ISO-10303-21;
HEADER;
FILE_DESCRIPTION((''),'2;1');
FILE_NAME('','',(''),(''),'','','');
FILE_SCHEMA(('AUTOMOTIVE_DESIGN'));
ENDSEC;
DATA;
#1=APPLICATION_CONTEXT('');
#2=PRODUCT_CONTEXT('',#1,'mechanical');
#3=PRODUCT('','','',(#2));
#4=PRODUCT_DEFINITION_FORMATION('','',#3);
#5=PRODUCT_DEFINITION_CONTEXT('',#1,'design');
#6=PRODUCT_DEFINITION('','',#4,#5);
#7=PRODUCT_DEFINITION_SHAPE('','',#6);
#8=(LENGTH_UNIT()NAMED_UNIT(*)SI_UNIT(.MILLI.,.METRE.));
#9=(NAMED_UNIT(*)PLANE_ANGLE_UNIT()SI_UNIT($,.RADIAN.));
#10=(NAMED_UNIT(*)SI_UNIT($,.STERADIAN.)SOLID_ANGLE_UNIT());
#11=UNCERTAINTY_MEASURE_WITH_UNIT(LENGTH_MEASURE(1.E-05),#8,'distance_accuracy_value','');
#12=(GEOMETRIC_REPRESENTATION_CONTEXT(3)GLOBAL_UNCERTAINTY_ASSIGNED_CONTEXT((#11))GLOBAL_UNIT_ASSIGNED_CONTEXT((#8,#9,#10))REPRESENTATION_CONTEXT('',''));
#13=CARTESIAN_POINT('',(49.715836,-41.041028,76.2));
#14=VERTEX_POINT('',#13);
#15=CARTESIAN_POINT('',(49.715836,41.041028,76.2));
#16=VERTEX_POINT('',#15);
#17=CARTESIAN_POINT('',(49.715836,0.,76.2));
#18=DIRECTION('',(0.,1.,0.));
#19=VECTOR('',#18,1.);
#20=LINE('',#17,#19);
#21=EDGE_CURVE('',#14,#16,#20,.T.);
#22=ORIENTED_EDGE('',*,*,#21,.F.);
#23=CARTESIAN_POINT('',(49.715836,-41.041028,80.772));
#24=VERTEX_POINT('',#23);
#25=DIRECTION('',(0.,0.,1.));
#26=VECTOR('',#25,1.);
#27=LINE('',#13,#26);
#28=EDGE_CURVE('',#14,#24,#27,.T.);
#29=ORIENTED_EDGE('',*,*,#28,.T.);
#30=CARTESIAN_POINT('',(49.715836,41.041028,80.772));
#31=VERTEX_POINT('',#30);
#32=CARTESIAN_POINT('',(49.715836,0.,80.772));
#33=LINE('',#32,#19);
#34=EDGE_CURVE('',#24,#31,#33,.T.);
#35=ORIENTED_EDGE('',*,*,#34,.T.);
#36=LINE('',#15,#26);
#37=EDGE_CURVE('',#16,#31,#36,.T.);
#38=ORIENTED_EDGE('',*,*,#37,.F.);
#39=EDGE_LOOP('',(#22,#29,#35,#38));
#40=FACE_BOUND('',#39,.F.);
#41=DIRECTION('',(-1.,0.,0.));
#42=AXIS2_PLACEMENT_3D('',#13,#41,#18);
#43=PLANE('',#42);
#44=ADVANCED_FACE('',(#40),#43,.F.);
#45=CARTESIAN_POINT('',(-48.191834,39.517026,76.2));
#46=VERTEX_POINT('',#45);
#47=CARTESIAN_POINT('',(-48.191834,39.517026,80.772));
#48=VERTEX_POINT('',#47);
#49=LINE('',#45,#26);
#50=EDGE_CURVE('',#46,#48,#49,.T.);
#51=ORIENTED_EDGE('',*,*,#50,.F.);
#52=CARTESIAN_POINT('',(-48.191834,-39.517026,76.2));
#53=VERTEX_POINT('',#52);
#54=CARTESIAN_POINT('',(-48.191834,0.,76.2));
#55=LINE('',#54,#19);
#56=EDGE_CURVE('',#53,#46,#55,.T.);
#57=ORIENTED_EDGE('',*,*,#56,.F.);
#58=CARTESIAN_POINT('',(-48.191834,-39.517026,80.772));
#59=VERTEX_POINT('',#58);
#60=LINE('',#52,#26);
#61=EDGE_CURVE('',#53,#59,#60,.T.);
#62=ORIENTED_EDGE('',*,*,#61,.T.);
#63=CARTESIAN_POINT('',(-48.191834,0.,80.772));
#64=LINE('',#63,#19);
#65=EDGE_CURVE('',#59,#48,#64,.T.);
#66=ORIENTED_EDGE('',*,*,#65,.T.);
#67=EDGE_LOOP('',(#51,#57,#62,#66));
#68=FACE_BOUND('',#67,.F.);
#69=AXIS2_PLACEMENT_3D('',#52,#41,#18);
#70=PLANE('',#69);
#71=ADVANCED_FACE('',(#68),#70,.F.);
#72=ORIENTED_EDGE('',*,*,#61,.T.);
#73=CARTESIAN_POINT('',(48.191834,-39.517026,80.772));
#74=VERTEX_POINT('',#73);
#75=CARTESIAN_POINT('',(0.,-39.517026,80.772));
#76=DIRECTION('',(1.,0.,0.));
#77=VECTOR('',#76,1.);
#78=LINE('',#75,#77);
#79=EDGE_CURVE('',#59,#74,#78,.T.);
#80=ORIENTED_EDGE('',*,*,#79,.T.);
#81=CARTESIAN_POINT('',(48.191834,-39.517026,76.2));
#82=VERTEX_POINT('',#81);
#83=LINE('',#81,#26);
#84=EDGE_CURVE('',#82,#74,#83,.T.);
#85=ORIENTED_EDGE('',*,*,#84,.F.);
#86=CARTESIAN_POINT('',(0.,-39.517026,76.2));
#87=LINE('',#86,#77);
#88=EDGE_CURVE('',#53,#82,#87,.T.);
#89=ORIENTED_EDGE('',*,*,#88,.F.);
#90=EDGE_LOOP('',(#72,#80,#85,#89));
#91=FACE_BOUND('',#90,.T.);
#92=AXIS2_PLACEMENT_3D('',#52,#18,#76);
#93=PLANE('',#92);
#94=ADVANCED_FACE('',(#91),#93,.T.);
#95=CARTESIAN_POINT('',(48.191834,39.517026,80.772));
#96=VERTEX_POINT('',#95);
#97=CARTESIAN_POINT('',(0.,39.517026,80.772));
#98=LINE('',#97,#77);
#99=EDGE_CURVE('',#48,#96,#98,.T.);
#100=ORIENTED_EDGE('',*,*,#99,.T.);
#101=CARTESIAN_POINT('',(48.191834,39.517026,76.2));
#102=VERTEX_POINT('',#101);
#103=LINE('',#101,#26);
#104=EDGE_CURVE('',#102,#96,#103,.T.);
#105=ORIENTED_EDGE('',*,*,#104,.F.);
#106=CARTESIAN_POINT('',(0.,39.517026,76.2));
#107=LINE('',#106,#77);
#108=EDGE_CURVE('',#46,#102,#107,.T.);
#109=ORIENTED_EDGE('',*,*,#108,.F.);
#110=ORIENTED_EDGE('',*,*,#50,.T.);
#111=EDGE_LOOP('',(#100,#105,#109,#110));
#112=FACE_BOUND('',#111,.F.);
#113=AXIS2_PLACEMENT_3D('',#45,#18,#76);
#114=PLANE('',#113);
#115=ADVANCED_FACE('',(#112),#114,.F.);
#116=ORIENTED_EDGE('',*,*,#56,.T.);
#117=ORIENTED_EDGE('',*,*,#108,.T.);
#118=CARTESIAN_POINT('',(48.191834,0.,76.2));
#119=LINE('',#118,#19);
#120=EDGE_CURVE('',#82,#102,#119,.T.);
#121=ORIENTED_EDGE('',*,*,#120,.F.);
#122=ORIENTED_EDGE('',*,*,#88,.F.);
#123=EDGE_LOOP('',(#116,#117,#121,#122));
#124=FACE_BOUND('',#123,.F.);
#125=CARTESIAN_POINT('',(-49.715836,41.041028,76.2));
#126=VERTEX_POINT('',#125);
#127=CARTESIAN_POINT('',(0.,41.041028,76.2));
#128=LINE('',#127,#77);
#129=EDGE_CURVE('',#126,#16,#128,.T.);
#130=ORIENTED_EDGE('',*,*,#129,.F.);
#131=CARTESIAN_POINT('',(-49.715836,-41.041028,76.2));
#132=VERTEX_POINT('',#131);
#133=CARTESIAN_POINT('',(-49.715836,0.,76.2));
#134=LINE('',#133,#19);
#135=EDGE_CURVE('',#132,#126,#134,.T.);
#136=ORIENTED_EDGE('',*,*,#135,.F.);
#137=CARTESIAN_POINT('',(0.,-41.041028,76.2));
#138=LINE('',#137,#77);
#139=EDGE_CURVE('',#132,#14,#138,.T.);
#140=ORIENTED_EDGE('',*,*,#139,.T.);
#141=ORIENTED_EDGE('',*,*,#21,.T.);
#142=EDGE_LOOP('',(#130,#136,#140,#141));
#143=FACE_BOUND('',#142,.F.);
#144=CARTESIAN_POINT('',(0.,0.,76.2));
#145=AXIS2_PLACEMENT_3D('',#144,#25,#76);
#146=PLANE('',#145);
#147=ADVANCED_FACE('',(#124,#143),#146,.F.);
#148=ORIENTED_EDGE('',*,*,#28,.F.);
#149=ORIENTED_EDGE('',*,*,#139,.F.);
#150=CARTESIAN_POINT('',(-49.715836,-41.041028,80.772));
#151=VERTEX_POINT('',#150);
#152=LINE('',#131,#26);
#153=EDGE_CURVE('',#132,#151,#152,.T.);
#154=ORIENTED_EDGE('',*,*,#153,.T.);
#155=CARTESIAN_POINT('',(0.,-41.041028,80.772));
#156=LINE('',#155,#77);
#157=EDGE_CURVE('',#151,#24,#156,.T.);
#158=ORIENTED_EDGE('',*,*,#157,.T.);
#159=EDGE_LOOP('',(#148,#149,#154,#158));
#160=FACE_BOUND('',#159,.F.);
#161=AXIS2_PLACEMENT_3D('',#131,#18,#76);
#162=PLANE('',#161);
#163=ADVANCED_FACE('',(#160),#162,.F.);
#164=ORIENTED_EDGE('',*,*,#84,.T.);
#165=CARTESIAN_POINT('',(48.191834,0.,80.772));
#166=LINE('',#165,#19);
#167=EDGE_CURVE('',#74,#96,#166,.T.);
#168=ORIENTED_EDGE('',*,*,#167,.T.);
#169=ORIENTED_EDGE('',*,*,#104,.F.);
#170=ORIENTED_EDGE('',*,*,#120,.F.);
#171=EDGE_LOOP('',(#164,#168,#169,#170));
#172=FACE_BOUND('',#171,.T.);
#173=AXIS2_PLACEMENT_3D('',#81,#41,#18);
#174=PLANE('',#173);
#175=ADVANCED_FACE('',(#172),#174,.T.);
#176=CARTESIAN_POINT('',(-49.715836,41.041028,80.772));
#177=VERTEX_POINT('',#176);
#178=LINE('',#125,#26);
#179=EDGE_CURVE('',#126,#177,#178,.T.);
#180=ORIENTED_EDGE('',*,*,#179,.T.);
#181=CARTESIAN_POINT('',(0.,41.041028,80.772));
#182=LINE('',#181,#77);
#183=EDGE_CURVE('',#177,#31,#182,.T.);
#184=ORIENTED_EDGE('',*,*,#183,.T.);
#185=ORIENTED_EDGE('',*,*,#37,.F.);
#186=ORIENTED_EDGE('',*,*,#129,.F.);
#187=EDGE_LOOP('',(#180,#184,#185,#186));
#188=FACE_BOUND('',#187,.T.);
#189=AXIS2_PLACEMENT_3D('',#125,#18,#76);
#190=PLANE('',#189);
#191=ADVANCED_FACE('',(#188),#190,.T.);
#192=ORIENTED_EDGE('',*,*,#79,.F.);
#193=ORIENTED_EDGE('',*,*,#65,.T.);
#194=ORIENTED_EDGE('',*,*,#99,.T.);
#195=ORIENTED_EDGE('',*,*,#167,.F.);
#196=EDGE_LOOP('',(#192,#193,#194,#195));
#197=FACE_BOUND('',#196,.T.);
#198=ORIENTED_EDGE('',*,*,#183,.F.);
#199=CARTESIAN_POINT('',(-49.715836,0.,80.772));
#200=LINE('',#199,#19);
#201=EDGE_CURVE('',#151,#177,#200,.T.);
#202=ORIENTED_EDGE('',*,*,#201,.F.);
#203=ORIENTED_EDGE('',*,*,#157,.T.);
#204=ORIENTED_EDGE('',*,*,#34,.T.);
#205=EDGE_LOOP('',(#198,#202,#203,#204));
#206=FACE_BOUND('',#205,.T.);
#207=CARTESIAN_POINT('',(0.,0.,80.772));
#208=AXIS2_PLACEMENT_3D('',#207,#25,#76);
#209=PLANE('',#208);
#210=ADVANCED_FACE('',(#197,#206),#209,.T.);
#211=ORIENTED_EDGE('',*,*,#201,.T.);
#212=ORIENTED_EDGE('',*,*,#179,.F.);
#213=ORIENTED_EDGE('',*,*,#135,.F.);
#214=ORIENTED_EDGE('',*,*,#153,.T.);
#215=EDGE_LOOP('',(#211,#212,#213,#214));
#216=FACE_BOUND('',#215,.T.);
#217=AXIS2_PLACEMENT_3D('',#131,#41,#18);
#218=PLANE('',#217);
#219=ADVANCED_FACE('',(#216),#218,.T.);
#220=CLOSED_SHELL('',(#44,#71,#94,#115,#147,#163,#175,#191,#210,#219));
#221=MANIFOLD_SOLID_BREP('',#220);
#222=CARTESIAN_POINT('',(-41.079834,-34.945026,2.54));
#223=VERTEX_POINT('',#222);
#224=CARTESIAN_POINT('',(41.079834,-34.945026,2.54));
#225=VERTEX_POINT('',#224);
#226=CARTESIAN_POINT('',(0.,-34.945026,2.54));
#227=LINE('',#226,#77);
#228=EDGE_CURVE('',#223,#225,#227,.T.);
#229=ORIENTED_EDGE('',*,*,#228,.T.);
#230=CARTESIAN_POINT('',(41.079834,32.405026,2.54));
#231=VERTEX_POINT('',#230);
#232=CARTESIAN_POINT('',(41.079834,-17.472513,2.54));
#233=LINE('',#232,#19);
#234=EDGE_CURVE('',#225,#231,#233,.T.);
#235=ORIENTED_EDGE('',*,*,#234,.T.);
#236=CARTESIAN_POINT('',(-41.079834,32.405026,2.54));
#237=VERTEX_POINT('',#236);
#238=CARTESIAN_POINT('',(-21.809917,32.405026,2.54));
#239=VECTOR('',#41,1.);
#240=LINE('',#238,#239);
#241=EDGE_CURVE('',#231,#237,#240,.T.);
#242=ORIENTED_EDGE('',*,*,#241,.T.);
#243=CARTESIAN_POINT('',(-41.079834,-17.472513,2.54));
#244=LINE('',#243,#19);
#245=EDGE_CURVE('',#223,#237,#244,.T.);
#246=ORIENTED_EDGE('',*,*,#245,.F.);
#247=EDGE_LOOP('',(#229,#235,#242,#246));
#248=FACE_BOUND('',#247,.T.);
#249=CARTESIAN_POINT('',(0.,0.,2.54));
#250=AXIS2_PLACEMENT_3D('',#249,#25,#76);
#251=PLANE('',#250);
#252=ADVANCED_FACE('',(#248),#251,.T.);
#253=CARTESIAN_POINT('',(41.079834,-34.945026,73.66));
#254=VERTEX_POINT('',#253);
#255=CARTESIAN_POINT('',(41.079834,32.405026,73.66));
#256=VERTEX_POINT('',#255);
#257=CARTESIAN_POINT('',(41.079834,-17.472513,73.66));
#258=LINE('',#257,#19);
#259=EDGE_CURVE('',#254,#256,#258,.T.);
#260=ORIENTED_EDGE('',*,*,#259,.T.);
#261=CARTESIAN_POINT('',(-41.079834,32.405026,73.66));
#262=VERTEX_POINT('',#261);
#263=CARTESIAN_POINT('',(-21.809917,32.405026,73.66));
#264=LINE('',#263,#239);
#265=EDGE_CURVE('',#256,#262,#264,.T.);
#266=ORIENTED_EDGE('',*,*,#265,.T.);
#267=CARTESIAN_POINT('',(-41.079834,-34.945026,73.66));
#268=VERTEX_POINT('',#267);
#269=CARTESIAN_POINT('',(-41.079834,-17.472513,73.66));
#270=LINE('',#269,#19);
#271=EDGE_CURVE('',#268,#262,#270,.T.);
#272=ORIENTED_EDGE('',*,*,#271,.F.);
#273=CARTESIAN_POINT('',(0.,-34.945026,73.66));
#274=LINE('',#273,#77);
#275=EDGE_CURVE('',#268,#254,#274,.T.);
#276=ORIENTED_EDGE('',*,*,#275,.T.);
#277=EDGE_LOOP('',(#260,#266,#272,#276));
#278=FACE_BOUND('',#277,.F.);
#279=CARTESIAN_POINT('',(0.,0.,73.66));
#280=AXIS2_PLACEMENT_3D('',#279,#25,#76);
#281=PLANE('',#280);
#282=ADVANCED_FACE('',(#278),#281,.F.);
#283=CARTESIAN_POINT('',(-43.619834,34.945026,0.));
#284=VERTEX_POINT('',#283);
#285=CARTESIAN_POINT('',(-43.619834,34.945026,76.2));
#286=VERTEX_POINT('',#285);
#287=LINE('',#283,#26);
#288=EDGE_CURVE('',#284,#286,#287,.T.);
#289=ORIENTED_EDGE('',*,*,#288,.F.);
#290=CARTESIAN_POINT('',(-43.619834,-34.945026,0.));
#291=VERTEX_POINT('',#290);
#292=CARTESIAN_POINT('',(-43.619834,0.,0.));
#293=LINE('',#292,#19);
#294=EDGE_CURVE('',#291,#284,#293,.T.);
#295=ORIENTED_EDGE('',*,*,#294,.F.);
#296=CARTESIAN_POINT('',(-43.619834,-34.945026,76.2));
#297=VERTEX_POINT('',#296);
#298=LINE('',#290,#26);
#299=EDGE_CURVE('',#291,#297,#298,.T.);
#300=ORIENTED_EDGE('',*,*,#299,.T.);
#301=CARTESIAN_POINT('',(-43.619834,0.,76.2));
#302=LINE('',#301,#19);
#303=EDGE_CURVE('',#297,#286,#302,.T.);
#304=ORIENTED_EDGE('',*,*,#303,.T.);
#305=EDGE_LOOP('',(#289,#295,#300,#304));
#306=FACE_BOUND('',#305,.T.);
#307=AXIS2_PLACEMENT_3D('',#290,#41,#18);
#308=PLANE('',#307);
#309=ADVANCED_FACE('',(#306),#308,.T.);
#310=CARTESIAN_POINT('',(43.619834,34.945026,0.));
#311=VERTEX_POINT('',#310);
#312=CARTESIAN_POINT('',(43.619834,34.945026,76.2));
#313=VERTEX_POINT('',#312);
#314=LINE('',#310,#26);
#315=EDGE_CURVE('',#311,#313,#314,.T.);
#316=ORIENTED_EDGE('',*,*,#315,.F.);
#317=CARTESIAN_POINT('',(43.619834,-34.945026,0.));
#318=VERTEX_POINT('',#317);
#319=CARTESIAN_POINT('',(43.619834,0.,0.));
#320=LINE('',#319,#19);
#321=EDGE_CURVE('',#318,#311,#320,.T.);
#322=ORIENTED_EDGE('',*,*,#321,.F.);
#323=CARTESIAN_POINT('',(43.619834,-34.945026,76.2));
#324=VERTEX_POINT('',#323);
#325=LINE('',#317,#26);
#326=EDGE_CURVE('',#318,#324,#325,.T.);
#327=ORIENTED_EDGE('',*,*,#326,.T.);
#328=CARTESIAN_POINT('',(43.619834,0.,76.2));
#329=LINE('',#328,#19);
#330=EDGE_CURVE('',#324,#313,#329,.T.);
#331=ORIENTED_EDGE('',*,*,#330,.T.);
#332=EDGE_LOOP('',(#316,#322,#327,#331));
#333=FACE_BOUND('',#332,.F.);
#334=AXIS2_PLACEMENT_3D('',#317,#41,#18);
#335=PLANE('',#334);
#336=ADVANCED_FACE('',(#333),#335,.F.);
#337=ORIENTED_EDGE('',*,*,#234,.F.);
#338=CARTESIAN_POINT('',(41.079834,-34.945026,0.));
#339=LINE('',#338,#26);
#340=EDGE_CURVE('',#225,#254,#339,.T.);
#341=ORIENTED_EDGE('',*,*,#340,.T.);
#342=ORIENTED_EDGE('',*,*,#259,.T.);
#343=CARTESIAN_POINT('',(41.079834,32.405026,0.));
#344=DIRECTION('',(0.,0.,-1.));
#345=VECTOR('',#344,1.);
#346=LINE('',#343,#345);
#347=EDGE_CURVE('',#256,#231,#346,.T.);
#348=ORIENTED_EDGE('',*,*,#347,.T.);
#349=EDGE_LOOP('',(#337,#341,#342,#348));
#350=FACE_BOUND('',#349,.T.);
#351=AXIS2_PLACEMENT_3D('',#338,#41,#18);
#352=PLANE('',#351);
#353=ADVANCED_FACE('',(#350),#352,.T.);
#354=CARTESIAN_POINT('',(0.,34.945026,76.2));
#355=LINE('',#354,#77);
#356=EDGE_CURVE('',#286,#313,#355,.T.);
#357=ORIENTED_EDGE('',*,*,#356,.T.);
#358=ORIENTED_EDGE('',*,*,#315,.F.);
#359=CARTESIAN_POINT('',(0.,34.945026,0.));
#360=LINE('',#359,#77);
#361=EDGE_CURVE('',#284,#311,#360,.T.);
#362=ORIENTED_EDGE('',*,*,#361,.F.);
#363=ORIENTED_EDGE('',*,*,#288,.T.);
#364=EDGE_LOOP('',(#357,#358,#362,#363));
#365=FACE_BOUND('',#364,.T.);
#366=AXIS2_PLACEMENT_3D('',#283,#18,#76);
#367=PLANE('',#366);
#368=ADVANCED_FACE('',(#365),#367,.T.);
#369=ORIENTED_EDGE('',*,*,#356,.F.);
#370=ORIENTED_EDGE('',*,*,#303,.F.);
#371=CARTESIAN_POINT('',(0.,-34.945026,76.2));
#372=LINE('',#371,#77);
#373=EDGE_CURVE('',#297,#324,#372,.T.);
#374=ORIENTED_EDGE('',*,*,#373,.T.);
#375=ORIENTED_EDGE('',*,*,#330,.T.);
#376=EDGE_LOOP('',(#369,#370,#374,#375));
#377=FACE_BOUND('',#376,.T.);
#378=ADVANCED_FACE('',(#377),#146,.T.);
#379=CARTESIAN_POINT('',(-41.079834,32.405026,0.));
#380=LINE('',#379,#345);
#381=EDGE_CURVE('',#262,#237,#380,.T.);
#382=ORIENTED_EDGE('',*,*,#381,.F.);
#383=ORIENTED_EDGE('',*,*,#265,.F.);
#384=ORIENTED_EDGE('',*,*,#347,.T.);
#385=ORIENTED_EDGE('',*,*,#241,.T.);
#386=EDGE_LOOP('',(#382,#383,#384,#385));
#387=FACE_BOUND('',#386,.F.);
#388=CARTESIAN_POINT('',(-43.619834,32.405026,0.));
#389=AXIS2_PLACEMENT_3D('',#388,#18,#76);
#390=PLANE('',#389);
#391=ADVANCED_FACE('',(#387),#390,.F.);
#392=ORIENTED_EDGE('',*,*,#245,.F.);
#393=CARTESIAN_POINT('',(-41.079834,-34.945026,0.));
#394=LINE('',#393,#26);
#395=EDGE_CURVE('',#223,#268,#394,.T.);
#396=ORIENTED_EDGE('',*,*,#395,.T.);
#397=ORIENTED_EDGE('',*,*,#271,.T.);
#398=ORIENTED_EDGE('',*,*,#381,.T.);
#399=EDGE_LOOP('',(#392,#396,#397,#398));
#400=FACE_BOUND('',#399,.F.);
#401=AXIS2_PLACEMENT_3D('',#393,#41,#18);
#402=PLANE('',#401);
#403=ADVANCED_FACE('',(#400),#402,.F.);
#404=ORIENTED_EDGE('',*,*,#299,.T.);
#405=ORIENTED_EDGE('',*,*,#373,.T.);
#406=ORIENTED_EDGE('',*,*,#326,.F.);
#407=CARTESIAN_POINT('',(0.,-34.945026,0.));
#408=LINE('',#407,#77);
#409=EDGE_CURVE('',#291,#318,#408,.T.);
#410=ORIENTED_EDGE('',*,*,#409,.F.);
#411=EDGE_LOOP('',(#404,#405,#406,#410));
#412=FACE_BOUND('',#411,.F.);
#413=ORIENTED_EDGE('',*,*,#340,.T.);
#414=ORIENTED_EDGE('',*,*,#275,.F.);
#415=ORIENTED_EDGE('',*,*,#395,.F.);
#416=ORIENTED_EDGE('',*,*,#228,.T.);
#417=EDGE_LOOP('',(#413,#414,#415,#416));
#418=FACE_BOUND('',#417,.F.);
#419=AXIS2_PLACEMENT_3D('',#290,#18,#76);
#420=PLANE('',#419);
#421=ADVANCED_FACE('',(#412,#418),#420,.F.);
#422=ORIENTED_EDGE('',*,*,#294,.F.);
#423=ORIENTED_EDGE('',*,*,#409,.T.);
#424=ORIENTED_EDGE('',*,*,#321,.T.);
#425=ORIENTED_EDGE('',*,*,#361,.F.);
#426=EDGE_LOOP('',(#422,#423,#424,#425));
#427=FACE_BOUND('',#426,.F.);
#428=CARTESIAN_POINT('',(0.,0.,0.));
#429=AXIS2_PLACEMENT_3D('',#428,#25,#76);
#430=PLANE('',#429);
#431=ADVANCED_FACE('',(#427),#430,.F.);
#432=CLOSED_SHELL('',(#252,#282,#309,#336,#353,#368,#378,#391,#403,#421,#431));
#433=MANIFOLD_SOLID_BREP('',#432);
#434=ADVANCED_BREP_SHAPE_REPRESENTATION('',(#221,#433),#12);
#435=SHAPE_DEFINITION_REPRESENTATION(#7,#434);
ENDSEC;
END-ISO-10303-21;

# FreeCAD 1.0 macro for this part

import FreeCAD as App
import Part
import Sketcher
Q = App.Units.Quantity


def faces_at(feature, points):
    """Names of the faces that lie closest to the given points."""
    faces = feature.Shape.Faces
    near = lambda p: min(range(len(faces)), key=lambda i: faces[i].distToShape(Part.Vertex(*p))[0])
    return sorted({f"Face{near(p) + 1}" for p in points})


def add_polygon(sketch, points):
    """Adds a closed chain of lines whose ends are joined by coincident constraints."""
    first, n = sketch.GeometryCount, len(points)
    for a, b in zip(points, points[1:] + points[:1]):
        sketch.addGeometry(Part.LineSegment(App.Vector(*a, 0), App.Vector(*b, 0)), False)
    for i in range(n):
        sketch.addConstraint(Sketcher.Constraint("Coincident", first + i, 2, first + (i + 1) % n, 1))

doc = App.newDocument("Part")
body = doc.addObject("PartDesign::Body", "Body")

sketch1 = body.newObject("Sketcher::SketchObject", "Sketch")
sketch1.AttachmentSupport = (doc.getObject("XY_Plane"), [""])
sketch1.MapMode = "FlatFace"
add_polygon(sketch1, [(-43.619834, 34.945026), (-43.619834, -34.945026), (43.619834, -34.945026), (43.619834, 34.945026)])
sketch1.addConstraint([
    Sketcher.Constraint("Vertical", 0),
    Sketcher.Constraint("Horizontal", 1),
    Sketcher.Constraint("Vertical", 2),
    Sketcher.Constraint("Horizontal", 3),
    Sketcher.Constraint("Symmetric", 0, 2, 2, 2, -1, 1),
    Sketcher.Constraint("DistanceY", 0, 2, 0, 1, 69.890052),
    Sketcher.Constraint("DistanceX", 1, 1, 1, 2, 87.239668),
])
pad1 = body.newObject("PartDesign::Pad", "Pad")
pad1.Profile = sketch1
pad1.Length = Q("3 in")
doc.recompute()

thickness = body.newObject("PartDesign::Thickness", "Thickness")
thickness.Base = (pad1, faces_at(pad1, [(0, -34.945, 38.1)]))
thickness.Value = Q("0.1 in")
thickness.Reversed = True
thickness.Join = "Arc"
body2 = doc.addObject("PartDesign::Body", "Body001")

sketch2 = body2.newObject("Sketcher::SketchObject", "Sketch001")
sketch2.AttachmentSupport = (doc.getObject("XY_Plane001"), [""])
sketch2.MapMode = "FlatFace"
sketch2.AttachmentOffset = App.Placement(App.Vector(0, 0, 3 * 25.4), App.Rotation())
add_polygon(sketch2, [(-49.715836, 41.041028), (-49.715836, -41.041028), (49.715836, -41.041028), (49.715836, 41.041028)])
add_polygon(sketch2, [(48.191834, -39.517026), (-48.191834, -39.517026), (-48.191834, 39.517026), (48.191834, 39.517026)])
sketch2.addConstraint([
    Sketcher.Constraint("Vertical", 0),
    Sketcher.Constraint("Horizontal", 1),
    Sketcher.Constraint("Vertical", 2),
    Sketcher.Constraint("Horizontal", 3),
    Sketcher.Constraint("Horizontal", 4),
    Sketcher.Constraint("Vertical", 5),
    Sketcher.Constraint("Horizontal", 6),
    Sketcher.Constraint("Vertical", 7),
    Sketcher.Constraint("Symmetric", 0, 2, 2, 2, -1, 1),
    Sketcher.Constraint("Symmetric", 4, 2, 6, 2, -1, 1),
    Sketcher.Constraint("DistanceX", 0, 2, 4, 2, Q("0.0600001 in")),
    Sketcher.Constraint("DistanceY", 0, 2, 4, 2, Q("0.0600001 in")),
    Sketcher.Constraint("DistanceX", 4, 2, 4, 1, 96.383668),
    Sketcher.Constraint("DistanceY", 0, 2, 0, 1, 82.082056),
])
pad2 = body2.newObject("PartDesign::Pad", "Pad001")
pad2.Profile = sketch2
pad2.Length = Q("0.18 in")

doc.recompute()
